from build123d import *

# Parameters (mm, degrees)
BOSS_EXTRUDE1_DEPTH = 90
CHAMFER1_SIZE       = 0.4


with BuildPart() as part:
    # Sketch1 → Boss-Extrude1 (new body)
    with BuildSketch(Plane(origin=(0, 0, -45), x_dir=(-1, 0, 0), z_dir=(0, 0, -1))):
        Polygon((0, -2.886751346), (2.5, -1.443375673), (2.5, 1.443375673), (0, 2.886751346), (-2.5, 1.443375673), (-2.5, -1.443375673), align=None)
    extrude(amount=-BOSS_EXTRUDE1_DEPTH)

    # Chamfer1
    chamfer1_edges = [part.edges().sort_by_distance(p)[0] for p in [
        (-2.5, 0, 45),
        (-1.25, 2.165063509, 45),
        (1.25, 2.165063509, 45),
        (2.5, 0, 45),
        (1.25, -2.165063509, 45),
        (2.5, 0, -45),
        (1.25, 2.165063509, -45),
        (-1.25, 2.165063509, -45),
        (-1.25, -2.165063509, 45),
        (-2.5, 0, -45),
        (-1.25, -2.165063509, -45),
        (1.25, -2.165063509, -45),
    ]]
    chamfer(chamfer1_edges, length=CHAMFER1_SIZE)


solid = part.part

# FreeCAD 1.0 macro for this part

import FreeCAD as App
import Part
import Sketcher
Q = App.Units.Quantity


def edges_at(feature, points):
    """Names of the edges that pass closest to the given points."""
    edges = feature.Shape.Edges
    near = lambda p: min(range(len(edges)), key=lambda i: edges[i].distToShape(Part.Vertex(*p))[0])
    return sorted({f"Edge{near(p) + 1}" for p in points})

doc = App.newDocument("Part")
body = doc.addObject("PartDesign::Body", "Body")

# Sketch on XY plane
sketch1 = doc.addObject("Sketcher::SketchObject", "Sketch")
body.addObject(sketch1)
sketch1.AttachmentSupport = (doc.XY_Plane, [""])
sketch1.MapMode = "FlatFace"
sketch1.AttachmentOffset = App.Placement(App.Vector(0, 0, -45), App.Rotation())
sketch1.addGeometry(Part.LineSegment(App.Vector(0, -2.886751, 0), App.Vector(-2.5, -1.443376, 0)), False)
sketch1.addGeometry(Part.LineSegment(App.Vector(-2.5, -1.443376, 0), App.Vector(-2.5, 1.443376, 0)), False)
sketch1.addGeometry(Part.LineSegment(App.Vector(-2.5, 1.443376, 0), App.Vector(0, 2.886751, 0)), False)
sketch1.addGeometry(Part.LineSegment(App.Vector(0, 2.886751, 0), App.Vector(2.5, 1.443376, 0)), False)
sketch1.addGeometry(Part.LineSegment(App.Vector(2.5, 1.443376, 0), App.Vector(2.5, -1.443376, 0)), False)
sketch1.addGeometry(Part.LineSegment(App.Vector(2.5, -1.443376, 0), App.Vector(0, -2.886751, 0)), False)
sketch1.addConstraint(Sketcher.Constraint("Coincident", 0, 2, 1, 1))
sketch1.addConstraint(Sketcher.Constraint("Coincident", 1, 2, 2, 1))
sketch1.addConstraint(Sketcher.Constraint("Coincident", 2, 2, 3, 1))
sketch1.addConstraint(Sketcher.Constraint("Coincident", 3, 2, 4, 1))
sketch1.addConstraint(Sketcher.Constraint("Coincident", 4, 2, 5, 1))
sketch1.addConstraint(Sketcher.Constraint("Coincident", 5, 2, 0, 1))
sketch1.addConstraint(Sketcher.Constraint("Vertical", 1))
sketch1.addConstraint(Sketcher.Constraint("Vertical", 4))
sketch1.addConstraint(Sketcher.Constraint("Symmetric", 0, 2, 3, 2, -1, 1))
sketch1.addConstraint(Sketcher.Constraint("Symmetric", 2, 2, 5, 2, -1, 1))
sketch1.addConstraint(Sketcher.Constraint("PointOnObject", 2, 2, -2))
sketch1.addConstraint(Sketcher.Constraint("Parallel", 2, 5))
sketch1.addConstraint(Sketcher.Constraint("Horizontal", 1, 2, 3, 2))
sketch1.addConstraint(Sketcher.Constraint("Angle", 0, Q("150 deg")))
sketch1.addConstraint(Sketcher.Constraint("DistanceX", 1, 2, 3, 2, 5.0))
sketch1.addConstraint(Sketcher.Constraint("DistanceY", 1, 1, 1, 2, 2.886751))
pad1 = doc.addObject("PartDesign::Pad", "Pad")
body.addObject(pad1)
pad1.Profile = sketch1
pad1.Length = 90
doc.recompute()

chamfer = doc.addObject("PartDesign::Chamfer", "Chamfer")
body.addObject(chamfer)
chamfer.Base = (pad1, edges_at(pad1, [
    (-2.5, 0, 45),
    (-1.25, 2.165, 45),
    (1.25, 2.165, 45),
    (2.5, 0, 45),
    (1.25, -2.165, 45),
    (2.5, 0, -45),
    (1.25, 2.165, -45),
    (-1.25, 2.165, -45),
    (-1.25, -2.165, 45),
    (-2.5, 0, -45),
    (-1.25, -2.165, -45),
    (1.25, -2.165, -45),
]))
chamfer.Size = 0.4

doc.recompute()
